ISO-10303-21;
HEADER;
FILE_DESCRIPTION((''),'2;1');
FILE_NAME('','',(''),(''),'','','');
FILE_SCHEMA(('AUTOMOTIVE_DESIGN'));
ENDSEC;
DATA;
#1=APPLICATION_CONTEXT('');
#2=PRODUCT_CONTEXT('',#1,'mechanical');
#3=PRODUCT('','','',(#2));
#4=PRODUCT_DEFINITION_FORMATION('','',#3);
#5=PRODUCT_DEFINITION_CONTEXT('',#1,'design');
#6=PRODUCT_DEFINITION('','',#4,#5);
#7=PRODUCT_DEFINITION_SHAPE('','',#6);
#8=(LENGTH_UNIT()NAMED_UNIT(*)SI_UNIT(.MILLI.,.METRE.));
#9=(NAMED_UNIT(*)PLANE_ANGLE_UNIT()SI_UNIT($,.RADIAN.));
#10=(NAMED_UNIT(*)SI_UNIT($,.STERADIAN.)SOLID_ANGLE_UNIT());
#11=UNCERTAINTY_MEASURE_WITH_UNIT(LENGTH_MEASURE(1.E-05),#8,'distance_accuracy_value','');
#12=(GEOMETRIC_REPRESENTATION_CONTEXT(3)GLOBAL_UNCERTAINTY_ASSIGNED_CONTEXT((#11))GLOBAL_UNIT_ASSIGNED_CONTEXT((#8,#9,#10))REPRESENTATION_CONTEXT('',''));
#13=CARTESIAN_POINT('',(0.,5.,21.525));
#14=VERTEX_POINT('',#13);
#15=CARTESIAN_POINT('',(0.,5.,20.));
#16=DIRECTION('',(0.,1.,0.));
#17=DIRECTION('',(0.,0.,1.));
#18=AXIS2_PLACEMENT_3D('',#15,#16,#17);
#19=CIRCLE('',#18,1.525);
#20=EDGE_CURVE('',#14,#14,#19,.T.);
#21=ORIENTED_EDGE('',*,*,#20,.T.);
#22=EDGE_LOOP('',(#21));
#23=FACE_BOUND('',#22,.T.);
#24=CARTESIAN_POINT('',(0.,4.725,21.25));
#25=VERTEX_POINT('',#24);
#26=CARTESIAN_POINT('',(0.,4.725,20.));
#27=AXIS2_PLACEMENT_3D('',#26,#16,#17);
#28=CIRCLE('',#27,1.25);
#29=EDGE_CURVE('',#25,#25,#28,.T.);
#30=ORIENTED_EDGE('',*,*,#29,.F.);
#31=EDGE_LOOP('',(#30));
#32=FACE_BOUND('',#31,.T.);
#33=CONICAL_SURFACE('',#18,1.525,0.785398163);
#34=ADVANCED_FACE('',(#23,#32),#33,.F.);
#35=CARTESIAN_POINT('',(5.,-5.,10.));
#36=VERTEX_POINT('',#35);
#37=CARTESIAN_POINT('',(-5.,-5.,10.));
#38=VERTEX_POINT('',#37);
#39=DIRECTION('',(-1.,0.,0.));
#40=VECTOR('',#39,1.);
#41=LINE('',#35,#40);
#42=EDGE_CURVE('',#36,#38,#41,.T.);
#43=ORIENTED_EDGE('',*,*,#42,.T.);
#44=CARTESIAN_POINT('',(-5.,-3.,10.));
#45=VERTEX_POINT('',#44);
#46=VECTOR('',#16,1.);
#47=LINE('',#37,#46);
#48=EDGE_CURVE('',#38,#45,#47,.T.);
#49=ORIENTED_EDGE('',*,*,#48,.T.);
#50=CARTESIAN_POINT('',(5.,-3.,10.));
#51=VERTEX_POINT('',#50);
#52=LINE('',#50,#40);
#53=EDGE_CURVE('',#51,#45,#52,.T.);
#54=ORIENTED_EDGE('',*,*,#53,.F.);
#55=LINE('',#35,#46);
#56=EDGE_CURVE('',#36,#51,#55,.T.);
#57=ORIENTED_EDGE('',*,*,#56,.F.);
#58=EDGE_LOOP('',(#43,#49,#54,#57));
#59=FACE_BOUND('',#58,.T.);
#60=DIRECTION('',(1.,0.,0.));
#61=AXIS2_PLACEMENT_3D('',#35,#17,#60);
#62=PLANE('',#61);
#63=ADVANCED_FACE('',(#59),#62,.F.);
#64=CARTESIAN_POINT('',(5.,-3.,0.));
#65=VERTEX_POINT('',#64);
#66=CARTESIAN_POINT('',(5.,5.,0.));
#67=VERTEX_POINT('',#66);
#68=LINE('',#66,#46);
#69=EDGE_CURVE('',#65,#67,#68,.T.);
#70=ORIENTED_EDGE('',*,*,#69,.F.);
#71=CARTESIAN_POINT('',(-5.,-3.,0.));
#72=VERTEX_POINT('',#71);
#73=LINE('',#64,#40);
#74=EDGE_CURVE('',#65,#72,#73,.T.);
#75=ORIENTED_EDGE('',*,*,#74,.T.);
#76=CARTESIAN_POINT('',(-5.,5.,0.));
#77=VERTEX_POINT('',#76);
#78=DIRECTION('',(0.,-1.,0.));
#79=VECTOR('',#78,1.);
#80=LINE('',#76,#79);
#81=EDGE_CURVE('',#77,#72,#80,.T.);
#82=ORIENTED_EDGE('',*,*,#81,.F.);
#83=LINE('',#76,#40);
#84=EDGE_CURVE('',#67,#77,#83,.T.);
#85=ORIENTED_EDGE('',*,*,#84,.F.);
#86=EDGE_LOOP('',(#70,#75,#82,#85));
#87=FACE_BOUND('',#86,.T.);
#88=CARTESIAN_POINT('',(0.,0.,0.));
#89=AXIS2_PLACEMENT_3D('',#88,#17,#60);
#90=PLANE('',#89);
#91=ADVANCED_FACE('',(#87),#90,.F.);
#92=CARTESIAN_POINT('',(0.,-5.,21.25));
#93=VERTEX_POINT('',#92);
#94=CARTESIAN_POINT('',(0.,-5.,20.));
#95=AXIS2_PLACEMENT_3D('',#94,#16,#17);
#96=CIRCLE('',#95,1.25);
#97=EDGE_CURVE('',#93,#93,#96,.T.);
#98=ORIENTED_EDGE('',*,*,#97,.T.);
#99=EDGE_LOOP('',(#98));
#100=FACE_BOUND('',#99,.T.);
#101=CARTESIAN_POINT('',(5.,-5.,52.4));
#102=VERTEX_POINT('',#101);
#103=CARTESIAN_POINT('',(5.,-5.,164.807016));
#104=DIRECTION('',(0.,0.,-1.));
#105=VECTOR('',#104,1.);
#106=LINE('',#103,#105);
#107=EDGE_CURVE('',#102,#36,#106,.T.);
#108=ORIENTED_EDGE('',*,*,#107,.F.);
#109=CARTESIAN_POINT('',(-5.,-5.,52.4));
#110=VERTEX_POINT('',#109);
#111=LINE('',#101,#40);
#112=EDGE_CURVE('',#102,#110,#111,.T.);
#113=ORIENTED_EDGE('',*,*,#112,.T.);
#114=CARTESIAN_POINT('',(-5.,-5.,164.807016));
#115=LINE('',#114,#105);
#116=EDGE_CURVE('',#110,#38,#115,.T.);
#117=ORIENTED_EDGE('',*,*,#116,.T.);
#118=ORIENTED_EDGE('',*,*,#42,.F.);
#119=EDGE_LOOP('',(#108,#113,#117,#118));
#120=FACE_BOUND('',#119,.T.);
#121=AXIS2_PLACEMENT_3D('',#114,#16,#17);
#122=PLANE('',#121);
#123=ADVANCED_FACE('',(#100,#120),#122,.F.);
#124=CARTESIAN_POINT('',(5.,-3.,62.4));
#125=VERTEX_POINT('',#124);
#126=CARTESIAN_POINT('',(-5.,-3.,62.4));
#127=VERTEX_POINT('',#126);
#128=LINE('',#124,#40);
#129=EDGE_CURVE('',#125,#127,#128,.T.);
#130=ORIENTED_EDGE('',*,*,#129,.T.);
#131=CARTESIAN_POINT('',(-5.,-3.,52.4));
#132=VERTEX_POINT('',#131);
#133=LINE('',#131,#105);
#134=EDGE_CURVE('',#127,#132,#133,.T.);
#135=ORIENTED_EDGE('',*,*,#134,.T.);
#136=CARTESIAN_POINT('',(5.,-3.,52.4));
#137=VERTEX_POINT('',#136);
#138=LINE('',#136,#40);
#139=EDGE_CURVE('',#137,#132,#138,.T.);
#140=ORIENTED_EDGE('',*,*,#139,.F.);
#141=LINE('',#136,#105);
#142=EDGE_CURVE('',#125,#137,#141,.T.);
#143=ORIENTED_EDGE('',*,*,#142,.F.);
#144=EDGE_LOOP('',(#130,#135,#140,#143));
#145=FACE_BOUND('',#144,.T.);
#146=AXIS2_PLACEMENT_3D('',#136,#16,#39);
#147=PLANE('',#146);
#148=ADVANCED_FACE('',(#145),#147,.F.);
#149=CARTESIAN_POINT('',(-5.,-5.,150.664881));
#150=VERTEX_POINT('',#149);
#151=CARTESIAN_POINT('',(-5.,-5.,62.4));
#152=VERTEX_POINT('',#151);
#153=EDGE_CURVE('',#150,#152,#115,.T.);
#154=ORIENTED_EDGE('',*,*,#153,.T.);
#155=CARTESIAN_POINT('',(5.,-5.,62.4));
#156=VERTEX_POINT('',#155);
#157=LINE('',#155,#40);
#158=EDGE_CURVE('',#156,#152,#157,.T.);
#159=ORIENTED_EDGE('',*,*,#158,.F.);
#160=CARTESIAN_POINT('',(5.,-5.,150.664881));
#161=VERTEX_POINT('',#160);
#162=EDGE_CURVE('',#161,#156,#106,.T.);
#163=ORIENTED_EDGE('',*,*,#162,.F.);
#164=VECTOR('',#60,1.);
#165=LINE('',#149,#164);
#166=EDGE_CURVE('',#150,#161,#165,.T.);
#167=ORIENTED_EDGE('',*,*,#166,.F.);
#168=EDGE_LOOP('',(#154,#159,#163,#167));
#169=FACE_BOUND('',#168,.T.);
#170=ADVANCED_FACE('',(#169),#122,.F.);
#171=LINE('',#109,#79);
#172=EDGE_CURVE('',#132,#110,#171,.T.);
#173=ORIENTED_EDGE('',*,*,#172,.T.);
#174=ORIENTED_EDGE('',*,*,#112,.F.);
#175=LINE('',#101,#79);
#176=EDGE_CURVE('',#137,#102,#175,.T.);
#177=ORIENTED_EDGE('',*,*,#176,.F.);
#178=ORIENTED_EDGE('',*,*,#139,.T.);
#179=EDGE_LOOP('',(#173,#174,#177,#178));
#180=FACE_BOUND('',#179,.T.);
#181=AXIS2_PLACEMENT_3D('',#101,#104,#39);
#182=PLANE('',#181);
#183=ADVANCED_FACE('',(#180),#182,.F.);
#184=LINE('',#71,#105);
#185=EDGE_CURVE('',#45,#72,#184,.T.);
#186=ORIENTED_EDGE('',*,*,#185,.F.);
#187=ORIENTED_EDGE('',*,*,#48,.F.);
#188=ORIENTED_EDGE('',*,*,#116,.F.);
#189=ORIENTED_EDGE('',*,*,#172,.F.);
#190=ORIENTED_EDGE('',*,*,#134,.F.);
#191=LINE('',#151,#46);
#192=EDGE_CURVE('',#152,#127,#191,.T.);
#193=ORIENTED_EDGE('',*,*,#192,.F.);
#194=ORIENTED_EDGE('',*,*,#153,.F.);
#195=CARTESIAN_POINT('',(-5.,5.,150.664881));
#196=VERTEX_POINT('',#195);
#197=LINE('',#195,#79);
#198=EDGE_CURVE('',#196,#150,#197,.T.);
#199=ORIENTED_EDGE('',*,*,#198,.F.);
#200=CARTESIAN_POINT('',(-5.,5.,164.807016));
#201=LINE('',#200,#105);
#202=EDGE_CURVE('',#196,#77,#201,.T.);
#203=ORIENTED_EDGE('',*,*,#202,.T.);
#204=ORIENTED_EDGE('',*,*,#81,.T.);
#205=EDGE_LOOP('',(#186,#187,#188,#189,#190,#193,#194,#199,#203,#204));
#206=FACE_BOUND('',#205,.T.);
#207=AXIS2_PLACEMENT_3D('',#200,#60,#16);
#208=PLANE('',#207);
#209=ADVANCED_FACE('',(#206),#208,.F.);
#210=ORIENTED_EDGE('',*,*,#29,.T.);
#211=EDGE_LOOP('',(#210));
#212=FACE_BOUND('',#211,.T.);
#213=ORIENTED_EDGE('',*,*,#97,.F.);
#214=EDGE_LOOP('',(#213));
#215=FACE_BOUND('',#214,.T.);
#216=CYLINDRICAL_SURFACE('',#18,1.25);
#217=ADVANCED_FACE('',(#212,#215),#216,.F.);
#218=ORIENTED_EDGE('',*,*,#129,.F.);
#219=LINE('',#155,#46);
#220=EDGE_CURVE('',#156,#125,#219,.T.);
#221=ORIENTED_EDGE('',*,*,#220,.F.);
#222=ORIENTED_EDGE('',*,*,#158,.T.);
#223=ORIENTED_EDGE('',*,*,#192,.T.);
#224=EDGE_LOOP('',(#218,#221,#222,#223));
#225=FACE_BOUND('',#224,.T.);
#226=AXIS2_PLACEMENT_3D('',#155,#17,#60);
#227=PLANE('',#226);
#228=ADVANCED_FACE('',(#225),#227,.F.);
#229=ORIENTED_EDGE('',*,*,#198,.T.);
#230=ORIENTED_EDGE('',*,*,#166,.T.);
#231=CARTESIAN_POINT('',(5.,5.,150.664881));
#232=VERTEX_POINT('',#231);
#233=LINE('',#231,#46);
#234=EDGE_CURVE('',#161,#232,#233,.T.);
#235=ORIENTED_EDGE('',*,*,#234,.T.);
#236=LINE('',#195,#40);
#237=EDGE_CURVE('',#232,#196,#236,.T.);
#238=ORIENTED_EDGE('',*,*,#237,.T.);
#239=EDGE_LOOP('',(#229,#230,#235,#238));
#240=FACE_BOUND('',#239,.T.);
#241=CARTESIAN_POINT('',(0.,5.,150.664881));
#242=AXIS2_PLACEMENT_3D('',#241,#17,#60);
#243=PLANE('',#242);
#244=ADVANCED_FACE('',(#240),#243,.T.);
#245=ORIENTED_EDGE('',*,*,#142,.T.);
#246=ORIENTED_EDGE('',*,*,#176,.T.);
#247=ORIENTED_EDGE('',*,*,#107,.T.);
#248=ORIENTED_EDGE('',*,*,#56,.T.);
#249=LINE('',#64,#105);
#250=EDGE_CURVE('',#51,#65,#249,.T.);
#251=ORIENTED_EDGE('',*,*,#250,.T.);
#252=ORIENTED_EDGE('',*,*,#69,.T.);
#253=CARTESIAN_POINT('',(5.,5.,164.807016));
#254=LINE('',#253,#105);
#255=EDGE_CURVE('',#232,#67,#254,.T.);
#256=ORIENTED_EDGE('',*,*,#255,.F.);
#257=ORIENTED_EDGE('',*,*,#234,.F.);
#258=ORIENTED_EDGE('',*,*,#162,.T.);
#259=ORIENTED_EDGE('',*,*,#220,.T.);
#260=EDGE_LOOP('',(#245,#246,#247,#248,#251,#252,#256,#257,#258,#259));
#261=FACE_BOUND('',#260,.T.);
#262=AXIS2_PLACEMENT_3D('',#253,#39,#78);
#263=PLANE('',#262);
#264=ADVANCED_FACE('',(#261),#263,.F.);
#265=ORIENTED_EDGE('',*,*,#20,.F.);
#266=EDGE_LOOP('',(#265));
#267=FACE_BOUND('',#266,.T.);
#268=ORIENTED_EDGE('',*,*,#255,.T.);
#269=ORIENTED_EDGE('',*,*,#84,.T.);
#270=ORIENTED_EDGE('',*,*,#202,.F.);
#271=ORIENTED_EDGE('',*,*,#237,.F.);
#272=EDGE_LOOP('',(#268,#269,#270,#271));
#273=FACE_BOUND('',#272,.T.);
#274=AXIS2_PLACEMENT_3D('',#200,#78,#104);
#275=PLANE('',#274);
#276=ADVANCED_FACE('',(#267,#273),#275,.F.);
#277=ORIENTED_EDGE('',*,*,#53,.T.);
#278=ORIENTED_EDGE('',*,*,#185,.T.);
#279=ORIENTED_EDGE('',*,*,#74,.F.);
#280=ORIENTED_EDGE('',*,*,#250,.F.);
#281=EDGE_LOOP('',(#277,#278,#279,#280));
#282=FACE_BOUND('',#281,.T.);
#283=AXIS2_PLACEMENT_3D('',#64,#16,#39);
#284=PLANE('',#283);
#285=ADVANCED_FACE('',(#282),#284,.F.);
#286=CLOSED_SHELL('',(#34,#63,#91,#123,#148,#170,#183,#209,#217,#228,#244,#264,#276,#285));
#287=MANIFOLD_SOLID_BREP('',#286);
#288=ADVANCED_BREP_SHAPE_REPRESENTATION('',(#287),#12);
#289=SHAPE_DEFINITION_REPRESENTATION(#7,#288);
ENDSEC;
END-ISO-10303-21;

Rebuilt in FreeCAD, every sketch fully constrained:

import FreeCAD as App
import Part
import Sketcher

V = App.Vector
Q = App.Units.Quantity


def add_polygon(sketch, points):
    """Adds a closed chain of lines whose ends are joined by coincident constraints."""
    first, n = sketch.GeometryCount, len(points)
    for a, b in zip(points, points[1:] + points[:1]):
        sketch.addGeometry(Part.LineSegment(App.Vector(*a, 0), App.Vector(*b, 0)), False)
    for i in range(n):
        sketch.addConstraint(Sketcher.Constraint("Coincident", first + i, 2, first + (i + 1) % n, 1))

doc = App.newDocument("Part")
params = doc.addObject("Spreadsheet::Sheet", "Params")
for row, (alias, value) in enumerate([
    ("sketch1_width", "10 mm"),
    ("pad1_length", "150.664881 mm"),
    ("sketch2_width", "2 mm"),
    ("sketch2_height", "10 mm"),
    ("sketch3_diameter", "2.5 mm"),
    ("hole_diameter", "2.5 mm"),
    ("hole_csink_diameter", "3.05 mm"),
], start=1):
    params.set(f"A{row}", alias)
    params.set(f"B{row}", "=" + value)
    params.setAlias(f"B{row}", alias)

body = doc.addObject("PartDesign::Body", "Body")

# Sketch on XY plane
sketch1 = doc.addObject("Sketcher::SketchObject", "Sketch")
body.addObject(sketch1)
sketch1.AttachmentSupport = (doc.XY_Plane, [""])
sketch1.MapMode = "FlatFace"
add_polygon(sketch1, [(-5, 5), (-5, -5), (5, -5), (5, 5)])  # lines 0-3
sketch1.addConstraint([
    Sketcher.Constraint("Vertical", 0),
    Sketcher.Constraint("Horizontal", 1),
    Sketcher.Constraint("Vertical", 2),
    Sketcher.Constraint("Horizontal", 3),
    Sketcher.Constraint("Symmetric", 0, 2, 2, 2, -1, 1),
    Sketcher.Constraint("Equal", 3, 0),
    Sketcher.Constraint("DistanceX", 1, 1, 1, 2, Q("10 mm")),
])
sketch1.setExpression("Constraints[10]", "Params.sketch1_width")
pad1 = doc.addObject("PartDesign::Pad", "Pad")
body.addObject(pad1)
pad1.Profile = sketch1
pad1.setExpression("Length", "Params.pad1_length")

# Sketch on YZ plane
sketch2 = doc.addObject("Sketcher::SketchObject", "Sketch001")
body.addObject(sketch2)
sketch2.AttachmentSupport = (doc.YZ_Plane, [""])
sketch2.MapMode = "FlatFace"
sketch2.AttachmentOffset = App.Placement(V(0, 0, -5), App.Rotation())
add_polygon(sketch2, [(-3, 0), (-5, 0), (-5, 10), (-3, 10)])  # lines 0-3
add_polygon(sketch2, [(-3, 52.4), (-5, 52.4), (-5, 62.4), (-3, 62.4)])  # lines 4-7
sketch2.addConstraint([
    Sketcher.Constraint("Horizontal", 0),
    Sketcher.Constraint("Vertical", 1),
    Sketcher.Constraint("Horizontal", 2),
    Sketcher.Constraint("Vertical", 3),
    Sketcher.Constraint("Horizontal", 4),
    Sketcher.Constraint("Vertical", 5),
    Sketcher.Constraint("Horizontal", 6),
    Sketcher.Constraint("Vertical", 7),
    Sketcher.Constraint("PointOnObject", 0, 2, -1),
    Sketcher.Constraint("Vertical", 1, 2, 4, 2),
    Sketcher.Constraint("Vertical", 3, 2, 6, 2),
    Sketcher.Constraint("Equal", 3, 5),
    Sketcher.Constraint("DistanceX", 0, 2, 0, 1, Q("2 mm")),
    Sketcher.Constraint("DistanceY", 1, 1, 1, 2, Q("10 mm")),
    Sketcher.Constraint("DistanceX", 0, 2, -1, 1, Q("5 mm")),
    Sketcher.Constraint("DistanceY", -1, 1, 4, 2, Q("52.4 mm")),
])
sketch2.setExpression("Constraints[20]", "Params.sketch2_width")
sketch2.setExpression("Constraints[21]", "Params.sketch2_height")
pocket1 = doc.addObject("PartDesign::Pocket", "Pocket")
body.addObject(pocket1)
pocket1.Profile = sketch2
pocket1.Type = "ThroughAll"
pocket1.Reversed = True

# Sketch on XZ plane
sketch3 = doc.addObject("Sketcher::SketchObject", "Sketch002")
body.addObject(sketch3)
sketch3.AttachmentSupport = (doc.XZ_Plane, [""])
sketch3.MapMode = "FlatFace"
sketch3.AttachmentOffset = App.Placement(V(0, 0, -5), App.Rotation())
sketch3.addGeometry(Part.Circle(V(0, 20, 0), V(0, 0, 1), 1.2), False)
sketch3.addConstraint([
    Sketcher.Constraint("PointOnObject", 0, 3, -2),
    Sketcher.Constraint("Diameter", 0, Q("2.5 mm")),
    Sketcher.Constraint("DistanceY", -1, 1, 0, 3, Q("20 mm")),
])
sketch3.setExpression("Constraints[1]", "Params.sketch3_diameter")
doc.recompute()
hole = doc.addObject("PartDesign::Hole", "Hole")
body.addObject(hole)
hole.Profile = sketch3
hole.ThreadType = "None"
hole.setExpression("Diameter", "Params.hole_diameter")
hole.DepthType = "ThroughAll"
hole.HoleCutType = "Countersink"
hole.setExpression("HoleCutDiameter", "Params.hole_csink_diameter")
hole.HoleCutCountersinkAngle = 90
hole.Reversed = True

doc.recompute()
